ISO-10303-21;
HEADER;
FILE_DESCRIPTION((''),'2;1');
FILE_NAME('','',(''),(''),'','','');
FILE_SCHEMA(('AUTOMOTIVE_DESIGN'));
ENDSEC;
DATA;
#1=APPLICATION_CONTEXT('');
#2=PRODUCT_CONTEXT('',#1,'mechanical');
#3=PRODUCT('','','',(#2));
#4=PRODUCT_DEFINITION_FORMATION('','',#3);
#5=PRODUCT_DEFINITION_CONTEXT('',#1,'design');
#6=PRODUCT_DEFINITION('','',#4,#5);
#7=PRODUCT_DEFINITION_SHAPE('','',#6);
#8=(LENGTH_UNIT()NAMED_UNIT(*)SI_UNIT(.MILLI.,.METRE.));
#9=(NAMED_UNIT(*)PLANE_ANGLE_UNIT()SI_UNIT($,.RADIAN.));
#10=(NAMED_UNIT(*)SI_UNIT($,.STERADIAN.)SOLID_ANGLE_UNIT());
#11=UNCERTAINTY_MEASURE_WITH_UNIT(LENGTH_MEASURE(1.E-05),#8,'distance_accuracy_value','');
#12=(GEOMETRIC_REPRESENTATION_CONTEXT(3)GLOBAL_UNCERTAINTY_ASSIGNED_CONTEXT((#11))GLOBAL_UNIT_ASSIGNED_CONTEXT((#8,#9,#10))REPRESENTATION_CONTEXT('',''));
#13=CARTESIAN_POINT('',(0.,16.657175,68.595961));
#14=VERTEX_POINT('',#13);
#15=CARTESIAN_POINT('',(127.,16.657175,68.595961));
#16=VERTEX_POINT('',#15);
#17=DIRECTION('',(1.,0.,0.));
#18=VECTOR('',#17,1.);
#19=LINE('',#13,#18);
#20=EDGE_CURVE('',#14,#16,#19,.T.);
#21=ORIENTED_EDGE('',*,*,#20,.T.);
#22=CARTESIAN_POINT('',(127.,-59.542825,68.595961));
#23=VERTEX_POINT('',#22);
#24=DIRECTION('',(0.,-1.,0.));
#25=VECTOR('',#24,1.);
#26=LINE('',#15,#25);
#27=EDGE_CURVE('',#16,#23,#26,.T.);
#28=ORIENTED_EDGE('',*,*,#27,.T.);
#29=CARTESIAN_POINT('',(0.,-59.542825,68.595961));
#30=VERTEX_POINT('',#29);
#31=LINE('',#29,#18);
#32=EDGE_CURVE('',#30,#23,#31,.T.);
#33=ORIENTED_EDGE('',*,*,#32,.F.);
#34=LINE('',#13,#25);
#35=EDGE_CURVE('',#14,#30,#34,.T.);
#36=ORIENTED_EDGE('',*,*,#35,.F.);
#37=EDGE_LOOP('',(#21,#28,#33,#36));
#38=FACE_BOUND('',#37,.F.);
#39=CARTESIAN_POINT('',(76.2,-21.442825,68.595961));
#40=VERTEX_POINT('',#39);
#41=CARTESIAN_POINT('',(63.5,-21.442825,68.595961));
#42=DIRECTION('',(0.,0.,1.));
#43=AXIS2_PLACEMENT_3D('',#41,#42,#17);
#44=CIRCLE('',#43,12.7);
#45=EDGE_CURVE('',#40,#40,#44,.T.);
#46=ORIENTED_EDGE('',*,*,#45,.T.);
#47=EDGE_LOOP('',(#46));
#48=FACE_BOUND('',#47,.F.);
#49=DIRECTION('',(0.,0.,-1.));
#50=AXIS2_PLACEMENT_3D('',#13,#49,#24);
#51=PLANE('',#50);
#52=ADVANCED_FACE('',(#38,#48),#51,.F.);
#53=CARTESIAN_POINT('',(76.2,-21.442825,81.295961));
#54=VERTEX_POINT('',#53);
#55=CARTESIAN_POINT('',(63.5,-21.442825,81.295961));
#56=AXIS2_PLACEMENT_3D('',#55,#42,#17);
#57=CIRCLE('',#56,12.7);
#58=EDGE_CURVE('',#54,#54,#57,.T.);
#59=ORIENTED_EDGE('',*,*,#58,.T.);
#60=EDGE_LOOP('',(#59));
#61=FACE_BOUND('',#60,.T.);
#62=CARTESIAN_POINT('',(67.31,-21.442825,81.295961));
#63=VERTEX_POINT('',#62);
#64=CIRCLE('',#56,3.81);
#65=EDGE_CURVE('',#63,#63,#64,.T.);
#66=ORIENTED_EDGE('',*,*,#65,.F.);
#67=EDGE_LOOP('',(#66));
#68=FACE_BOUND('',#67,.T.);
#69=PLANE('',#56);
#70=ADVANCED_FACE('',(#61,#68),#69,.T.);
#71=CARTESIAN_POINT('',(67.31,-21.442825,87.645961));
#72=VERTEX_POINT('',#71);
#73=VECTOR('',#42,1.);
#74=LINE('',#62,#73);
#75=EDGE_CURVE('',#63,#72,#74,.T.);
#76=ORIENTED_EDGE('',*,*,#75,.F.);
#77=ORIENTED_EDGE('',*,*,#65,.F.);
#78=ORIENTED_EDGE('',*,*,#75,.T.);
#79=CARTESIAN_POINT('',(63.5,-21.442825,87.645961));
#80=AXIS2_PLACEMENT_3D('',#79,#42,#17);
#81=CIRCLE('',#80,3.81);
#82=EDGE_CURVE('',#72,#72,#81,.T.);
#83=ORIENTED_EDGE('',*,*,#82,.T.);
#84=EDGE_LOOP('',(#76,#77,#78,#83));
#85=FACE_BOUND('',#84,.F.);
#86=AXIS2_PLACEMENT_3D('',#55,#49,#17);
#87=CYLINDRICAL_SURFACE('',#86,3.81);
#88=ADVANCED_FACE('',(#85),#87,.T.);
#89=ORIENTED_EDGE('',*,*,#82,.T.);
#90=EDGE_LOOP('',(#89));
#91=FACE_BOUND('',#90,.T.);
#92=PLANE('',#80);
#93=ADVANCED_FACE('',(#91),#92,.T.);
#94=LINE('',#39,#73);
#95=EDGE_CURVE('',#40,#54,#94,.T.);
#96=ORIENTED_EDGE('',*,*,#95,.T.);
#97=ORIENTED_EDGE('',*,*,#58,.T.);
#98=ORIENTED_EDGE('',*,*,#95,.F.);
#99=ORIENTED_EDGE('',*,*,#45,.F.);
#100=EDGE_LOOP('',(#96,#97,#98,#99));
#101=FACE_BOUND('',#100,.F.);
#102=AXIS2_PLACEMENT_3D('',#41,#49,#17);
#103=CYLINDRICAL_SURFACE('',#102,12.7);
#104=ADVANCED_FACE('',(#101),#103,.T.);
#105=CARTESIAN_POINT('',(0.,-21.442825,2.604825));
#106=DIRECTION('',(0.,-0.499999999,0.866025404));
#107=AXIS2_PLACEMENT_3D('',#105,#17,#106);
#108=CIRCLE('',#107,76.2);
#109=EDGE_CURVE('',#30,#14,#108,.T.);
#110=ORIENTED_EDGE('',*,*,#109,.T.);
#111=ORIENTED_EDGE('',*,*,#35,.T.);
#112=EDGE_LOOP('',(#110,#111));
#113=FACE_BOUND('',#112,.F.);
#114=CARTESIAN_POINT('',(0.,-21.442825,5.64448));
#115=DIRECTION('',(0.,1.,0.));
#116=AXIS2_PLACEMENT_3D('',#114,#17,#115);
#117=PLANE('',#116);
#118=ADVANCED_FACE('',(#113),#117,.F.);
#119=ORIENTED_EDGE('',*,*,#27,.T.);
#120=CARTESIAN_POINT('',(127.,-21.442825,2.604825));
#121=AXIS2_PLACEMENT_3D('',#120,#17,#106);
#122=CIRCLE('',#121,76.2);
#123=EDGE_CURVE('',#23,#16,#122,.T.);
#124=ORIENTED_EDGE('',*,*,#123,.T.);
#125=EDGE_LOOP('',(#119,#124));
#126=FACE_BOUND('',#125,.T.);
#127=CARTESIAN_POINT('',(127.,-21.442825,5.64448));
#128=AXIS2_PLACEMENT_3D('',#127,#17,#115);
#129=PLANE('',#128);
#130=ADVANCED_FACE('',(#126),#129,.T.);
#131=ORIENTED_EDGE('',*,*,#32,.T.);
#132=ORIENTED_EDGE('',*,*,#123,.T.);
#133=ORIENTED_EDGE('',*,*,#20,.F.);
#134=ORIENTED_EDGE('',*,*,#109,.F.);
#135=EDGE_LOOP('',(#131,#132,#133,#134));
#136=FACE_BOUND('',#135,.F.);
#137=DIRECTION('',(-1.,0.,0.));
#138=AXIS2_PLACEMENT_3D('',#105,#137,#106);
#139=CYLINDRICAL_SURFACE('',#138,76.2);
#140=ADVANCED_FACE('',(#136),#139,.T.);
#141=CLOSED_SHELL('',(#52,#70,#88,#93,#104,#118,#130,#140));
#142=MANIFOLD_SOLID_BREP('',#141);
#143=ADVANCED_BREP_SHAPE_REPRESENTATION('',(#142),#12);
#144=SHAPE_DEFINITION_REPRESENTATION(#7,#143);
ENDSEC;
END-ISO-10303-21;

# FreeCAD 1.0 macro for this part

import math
import FreeCAD as App
import Part
import Sketcher
Q = App.Units.Quantity

doc = App.newDocument("Part")
body = doc.addObject("PartDesign::Body", "Body")

# Sketch on YZ plane
sketch1 = body.newObject("Sketcher::SketchObject", "Sketch")
sketch1.AttachmentSupport = (doc.getObject("YZ_Plane"), [""])
sketch1.MapMode = "FlatFace"
sketch1.addGeometry([
    Part.LineSegment(App.Vector(16.657175, 68.595961, 0), App.Vector(-59.542825, 68.595961, 0)),
    Part.ArcOfCircle(Part.Circle(App.Vector(-21.442825, 2.604825, 0), App.Vector(0, 0, 1), 76.2), math.radians(120), math.radians(420)),
], False)
sketch1.addConstraint([
    Sketcher.Constraint("Coincident", 0, 1, 1, 2),
    Sketcher.Constraint("Coincident", 1, 1, 0, 2),
    Sketcher.Constraint("Horizontal", 0),
    Sketcher.Constraint("Radius", 1, Q("3 in")),
    Sketcher.Constraint("DistanceX", 0, 2, 0, 1, Q("3 in")),
    Sketcher.Constraint("DistanceY", -1, 1, 0, 1, 68.595961),
    Sketcher.Constraint("DistanceX", 1, 3, -1, 1, 21.442825),
])
pad1 = body.newObject("PartDesign::Pad", "Pad")
pad1.Profile = sketch1
pad1.Length = Q("5 in")

# Sketch on XY plane
sketch2 = body.newObject("Sketcher::SketchObject", "Sketch001")
sketch2.AttachmentSupport = (doc.getObject("XY_Plane"), [""])
sketch2.MapMode = "FlatFace"
sketch2.AttachmentOffset = App.Placement(App.Vector(0, 0, 68.595961), App.Rotation())
sketch2.addGeometry(Part.Circle(App.Vector(63.5, -21.442825, 0), App.Vector(0, 0, 1), 12.7), False)
sketch2.addConstraint([
    Sketcher.Constraint("Diameter", 0, Q("1 in")),
    Sketcher.Constraint("DistanceX", -1, 1, 0, 3, Q("2.5 in")),
    Sketcher.Constraint("DistanceY", 0, 3, -1, 1, 21.442825),
])
pad2 = body.newObject("PartDesign::Pad", "Pad001")
pad2.Profile = sketch2
pad2.Length = Q("0.5 in")

# Sketch on XY plane
sketch3 = body.newObject("Sketcher::SketchObject", "Sketch002")
sketch3.AttachmentSupport = (doc.getObject("XY_Plane"), [""])
sketch3.MapMode = "FlatFace"
sketch3.AttachmentOffset = App.Placement(App.Vector(0, 0, 81.295961), App.Rotation())
sketch3.addGeometry(Part.Circle(App.Vector(63.5, -21.442825, 0), App.Vector(0, 0, 1), 3.81), False)
sketch3.addConstraint([
    Sketcher.Constraint("Diameter", 0, Q("0.3 in")),
    Sketcher.Constraint("DistanceX", -1, 1, 0, 3, Q("2.5 in")),
    Sketcher.Constraint("DistanceY", 0, 3, -1, 1, 21.442825),
])
pad3 = body.newObject("PartDesign::Pad", "Pad002")
pad3.Profile = sketch3
pad3.Length = Q("0.25 in")

doc.recompute()
